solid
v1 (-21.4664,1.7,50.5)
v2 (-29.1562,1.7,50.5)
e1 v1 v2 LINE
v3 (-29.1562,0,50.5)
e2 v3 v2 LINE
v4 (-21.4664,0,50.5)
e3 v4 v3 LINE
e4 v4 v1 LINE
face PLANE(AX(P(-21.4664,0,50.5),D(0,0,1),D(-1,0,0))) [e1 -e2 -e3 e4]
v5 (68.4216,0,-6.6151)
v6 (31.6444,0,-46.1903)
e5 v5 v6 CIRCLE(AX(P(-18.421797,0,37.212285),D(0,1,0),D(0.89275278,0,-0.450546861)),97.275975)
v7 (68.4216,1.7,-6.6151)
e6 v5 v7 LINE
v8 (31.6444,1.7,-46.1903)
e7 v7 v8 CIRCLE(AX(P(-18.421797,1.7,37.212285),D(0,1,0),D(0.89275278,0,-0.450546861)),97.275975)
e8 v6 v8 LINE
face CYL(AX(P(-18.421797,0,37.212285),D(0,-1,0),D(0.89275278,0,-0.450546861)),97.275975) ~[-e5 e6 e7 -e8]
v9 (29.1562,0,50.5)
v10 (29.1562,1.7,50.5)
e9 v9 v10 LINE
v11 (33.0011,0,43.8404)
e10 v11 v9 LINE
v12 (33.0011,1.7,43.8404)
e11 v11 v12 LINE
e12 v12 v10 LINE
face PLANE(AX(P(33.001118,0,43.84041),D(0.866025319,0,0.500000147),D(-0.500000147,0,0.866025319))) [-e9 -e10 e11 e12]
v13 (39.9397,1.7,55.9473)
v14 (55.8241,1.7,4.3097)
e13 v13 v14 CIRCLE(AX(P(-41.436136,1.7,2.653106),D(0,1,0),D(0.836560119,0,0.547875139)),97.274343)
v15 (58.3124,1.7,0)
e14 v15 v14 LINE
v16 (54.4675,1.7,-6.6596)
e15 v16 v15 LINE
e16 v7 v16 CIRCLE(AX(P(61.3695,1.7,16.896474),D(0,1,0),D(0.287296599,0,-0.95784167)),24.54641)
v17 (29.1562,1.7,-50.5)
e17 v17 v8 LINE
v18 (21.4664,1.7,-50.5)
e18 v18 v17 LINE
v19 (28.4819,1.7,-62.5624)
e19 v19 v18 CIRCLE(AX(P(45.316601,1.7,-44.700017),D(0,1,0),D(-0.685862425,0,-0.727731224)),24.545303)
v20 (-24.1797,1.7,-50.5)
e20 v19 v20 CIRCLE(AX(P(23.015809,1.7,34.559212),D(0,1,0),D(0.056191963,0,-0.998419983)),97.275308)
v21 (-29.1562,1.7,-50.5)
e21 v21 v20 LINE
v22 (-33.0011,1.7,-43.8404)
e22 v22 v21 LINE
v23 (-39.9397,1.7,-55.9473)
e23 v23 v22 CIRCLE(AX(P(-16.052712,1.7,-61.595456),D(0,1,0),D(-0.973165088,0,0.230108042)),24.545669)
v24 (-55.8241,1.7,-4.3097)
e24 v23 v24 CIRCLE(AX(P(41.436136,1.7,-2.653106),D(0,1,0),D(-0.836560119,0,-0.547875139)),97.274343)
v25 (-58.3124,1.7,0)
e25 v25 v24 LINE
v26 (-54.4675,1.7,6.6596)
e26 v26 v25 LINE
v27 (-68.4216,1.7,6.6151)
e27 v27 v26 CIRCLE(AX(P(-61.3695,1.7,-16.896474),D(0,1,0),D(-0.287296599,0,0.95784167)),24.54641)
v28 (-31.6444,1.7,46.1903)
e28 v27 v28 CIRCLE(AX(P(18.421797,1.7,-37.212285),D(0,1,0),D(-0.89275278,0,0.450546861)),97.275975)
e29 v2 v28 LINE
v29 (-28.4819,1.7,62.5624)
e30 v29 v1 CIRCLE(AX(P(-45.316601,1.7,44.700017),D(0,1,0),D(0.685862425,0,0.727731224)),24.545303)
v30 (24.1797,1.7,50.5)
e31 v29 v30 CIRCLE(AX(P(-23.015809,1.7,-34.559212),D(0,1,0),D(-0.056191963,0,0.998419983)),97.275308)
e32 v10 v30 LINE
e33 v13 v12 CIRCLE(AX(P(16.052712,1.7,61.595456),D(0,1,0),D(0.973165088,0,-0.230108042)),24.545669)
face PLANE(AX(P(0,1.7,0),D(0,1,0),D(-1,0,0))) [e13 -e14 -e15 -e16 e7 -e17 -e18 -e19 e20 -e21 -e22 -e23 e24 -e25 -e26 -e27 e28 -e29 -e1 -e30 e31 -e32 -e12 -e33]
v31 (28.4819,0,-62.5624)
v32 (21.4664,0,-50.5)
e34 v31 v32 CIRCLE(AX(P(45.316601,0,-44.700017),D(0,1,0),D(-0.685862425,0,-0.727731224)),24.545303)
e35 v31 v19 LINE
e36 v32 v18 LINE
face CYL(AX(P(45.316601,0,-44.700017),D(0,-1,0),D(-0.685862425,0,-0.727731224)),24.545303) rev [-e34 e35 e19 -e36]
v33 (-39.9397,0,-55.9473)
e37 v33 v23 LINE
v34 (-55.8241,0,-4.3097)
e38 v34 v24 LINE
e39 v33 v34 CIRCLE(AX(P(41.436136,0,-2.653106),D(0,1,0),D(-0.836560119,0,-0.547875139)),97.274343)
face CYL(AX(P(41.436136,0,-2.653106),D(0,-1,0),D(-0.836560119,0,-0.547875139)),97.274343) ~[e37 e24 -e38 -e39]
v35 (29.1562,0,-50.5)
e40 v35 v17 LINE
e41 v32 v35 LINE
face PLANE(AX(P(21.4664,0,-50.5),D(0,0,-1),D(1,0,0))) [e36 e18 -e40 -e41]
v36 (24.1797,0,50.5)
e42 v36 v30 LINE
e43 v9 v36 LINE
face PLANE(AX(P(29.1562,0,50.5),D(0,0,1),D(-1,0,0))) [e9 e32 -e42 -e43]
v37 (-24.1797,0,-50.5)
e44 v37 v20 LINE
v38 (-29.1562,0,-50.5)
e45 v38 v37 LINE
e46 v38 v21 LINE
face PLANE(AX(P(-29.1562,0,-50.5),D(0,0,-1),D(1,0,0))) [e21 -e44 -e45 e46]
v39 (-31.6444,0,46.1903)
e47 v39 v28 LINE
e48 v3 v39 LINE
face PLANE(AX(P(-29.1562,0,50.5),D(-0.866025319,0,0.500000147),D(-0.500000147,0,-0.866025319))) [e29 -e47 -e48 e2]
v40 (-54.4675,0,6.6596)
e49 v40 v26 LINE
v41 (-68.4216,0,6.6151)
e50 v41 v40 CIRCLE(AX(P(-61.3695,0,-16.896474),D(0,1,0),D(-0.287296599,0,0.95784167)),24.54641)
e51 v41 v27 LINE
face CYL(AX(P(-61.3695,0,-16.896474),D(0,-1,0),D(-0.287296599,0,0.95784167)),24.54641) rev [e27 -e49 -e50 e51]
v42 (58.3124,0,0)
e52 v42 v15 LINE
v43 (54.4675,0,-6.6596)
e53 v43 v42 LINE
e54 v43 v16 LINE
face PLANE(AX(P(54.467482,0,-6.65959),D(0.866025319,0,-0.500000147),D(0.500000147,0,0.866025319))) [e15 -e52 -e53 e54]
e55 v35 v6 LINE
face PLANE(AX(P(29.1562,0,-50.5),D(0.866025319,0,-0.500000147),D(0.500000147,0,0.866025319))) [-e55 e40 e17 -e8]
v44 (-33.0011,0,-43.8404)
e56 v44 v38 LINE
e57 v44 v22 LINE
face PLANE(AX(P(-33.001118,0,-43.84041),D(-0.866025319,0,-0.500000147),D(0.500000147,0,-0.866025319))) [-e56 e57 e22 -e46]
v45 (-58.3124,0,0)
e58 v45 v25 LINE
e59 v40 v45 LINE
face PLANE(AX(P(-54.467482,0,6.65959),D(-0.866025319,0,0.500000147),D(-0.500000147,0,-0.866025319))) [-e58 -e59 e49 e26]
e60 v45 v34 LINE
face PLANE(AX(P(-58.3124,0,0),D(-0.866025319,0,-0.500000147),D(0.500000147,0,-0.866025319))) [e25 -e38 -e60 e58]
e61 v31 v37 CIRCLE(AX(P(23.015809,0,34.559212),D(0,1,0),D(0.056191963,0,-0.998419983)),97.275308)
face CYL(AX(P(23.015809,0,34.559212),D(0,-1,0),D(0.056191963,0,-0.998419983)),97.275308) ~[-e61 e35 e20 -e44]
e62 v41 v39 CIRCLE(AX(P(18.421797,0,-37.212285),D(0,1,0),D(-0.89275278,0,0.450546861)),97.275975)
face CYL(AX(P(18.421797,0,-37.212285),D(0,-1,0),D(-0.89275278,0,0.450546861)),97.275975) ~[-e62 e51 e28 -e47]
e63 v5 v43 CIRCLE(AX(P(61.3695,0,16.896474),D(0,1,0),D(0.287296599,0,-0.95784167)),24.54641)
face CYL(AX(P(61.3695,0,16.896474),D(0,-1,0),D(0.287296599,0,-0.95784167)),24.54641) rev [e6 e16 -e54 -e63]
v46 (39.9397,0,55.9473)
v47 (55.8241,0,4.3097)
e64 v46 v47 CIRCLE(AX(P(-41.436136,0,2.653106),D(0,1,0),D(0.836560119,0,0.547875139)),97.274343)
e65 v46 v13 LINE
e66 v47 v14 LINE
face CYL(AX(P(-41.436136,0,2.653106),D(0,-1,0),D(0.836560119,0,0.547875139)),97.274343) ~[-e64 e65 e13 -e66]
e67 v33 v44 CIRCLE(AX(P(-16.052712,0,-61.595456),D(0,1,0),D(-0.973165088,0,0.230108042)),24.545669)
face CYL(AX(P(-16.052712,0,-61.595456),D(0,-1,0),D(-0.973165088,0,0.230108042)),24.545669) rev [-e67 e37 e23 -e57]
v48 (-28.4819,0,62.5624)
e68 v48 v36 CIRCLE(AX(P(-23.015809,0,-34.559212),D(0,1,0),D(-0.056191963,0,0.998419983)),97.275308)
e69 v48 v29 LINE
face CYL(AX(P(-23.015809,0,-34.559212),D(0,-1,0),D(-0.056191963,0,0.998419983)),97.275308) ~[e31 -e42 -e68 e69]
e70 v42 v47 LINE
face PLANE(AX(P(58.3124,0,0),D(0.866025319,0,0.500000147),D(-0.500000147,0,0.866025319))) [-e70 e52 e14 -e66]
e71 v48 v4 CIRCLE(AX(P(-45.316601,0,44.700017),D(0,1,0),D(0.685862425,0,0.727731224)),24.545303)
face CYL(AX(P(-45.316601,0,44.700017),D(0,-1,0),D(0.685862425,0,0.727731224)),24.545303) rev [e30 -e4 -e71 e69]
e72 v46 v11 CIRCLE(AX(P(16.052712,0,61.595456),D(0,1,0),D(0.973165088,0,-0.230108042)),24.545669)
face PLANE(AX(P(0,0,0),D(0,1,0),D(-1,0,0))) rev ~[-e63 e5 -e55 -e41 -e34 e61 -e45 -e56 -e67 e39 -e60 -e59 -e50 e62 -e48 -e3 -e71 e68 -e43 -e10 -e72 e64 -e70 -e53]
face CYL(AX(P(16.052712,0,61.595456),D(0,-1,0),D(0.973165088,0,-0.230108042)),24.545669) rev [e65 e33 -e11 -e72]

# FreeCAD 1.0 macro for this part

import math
import FreeCAD as App
import Part
import Sketcher
Q = App.Units.Quantity

doc = App.newDocument("Part")
body = doc.addObject("PartDesign::Body", "Body")

sketch1 = body.newObject("Sketcher::SketchObject", "Sketch")
sketch1.AttachmentSupport = (doc.getObject("XZ_Plane"), [""])
sketch1.MapMode = "FlatFace"
sketch1.addGeometry(Part.LineSegment(App.Vector(31.6, -46.2, 0), App.Vector(29.2, -50.5, 0)), False)
sketch1.addGeometry(Part.LineSegment(App.Vector(29.2, -50.5, 0), App.Vector(21.5, -50.5, 0)), False)
sketch1.addGeometry(Part.ArcOfCircle(Part.Circle(App.Vector(45.3, -44.7, 0), App.Vector(0, 0, 1), 24.5), math.radians(-166), math.radians(-133)), False)
sketch1.addGeometry(Part.ArcOfCircle(Part.Circle(App.Vector(23, 34.6, 0), App.Vector(0, 0, 1), 97.3), math.radians(-119), math.radians(-87)), False)
sketch1.addGeometry(Part.LineSegment(App.Vector(-24.2, -50.5, 0), App.Vector(-29.2, -50.5, 0)), False)
sketch1.addGeometry(Part.LineSegment(App.Vector(-29.2, -50.5, 0), App.Vector(-33, -43.8, 0)), False)
sketch1.addGeometry(Part.ArcOfCircle(Part.Circle(App.Vector(-16.1, -61.6, 0), App.Vector(0, 0, 1), 24.5), math.radians(134), math.radians(167)), False)
sketch1.addGeometry(Part.ArcOfCircle(Part.Circle(App.Vector(41.4, -2.7, 0), App.Vector(0, 0, 1), 97.3), math.radians(-179), math.radians(-147)), False)
sketch1.addGeometry(Part.LineSegment(App.Vector(-55.8, -4.3, 0), App.Vector(-58.3, 0, 0)), False)
sketch1.addGeometry(Part.LineSegment(App.Vector(-58.3, 0, 0), App.Vector(-54.5, 6.7, 0)), False)
sketch1.addGeometry(Part.ArcOfCircle(Part.Circle(App.Vector(-61.4, -16.9, 0), App.Vector(0, 0, 1), 24.5), math.radians(74), math.radians(107)), False)
sketch1.addGeometry(Part.ArcOfCircle(Part.Circle(App.Vector(18.4, -37.2, 0), App.Vector(0, 0, 1), 97.3), math.radians(121), math.radians(153)), False)
sketch1.addGeometry(Part.LineSegment(App.Vector(-31.6, 46.2, 0), App.Vector(-29.2, 50.5, 0)), False)
sketch1.addGeometry(Part.LineSegment(App.Vector(-29.2, 50.5, 0), App.Vector(-21.5, 50.5, 0)), False)
sketch1.addGeometry(Part.ArcOfCircle(Part.Circle(App.Vector(-45.3, 44.7, 0), App.Vector(0, 0, 1), 24.5), math.radians(14), math.radians(47)), False)
sketch1.addGeometry(Part.ArcOfCircle(Part.Circle(App.Vector(-23, -34.6, 0), App.Vector(0, 0, 1), 97.3), math.radians(61), math.radians(93)), False)
sketch1.addGeometry(Part.LineSegment(App.Vector(24.2, 50.5, 0), App.Vector(29.2, 50.5, 0)), False)
sketch1.addGeometry(Part.LineSegment(App.Vector(29.2, 50.5, 0), App.Vector(33, 43.8, 0)), False)
sketch1.addGeometry(Part.ArcOfCircle(Part.Circle(App.Vector(16.1, 61.6, 0), App.Vector(0, 0, 1), 24.5), math.radians(-46), math.radians(-13)), False)
sketch1.addGeometry(Part.ArcOfCircle(Part.Circle(App.Vector(-41.4, 2.7, 0), App.Vector(0, 0, 1), 97.3), math.radians(1), math.radians(33)), False)
sketch1.addGeometry(Part.LineSegment(App.Vector(55.8, 4.3, 0), App.Vector(58.3, 0, 0)), False)
sketch1.addGeometry(Part.LineSegment(App.Vector(58.3, 0, 0), App.Vector(54.5, -6.7, 0)), False)
sketch1.addGeometry(Part.ArcOfCircle(Part.Circle(App.Vector(61.4, 16.9, 0), App.Vector(0, 0, 1), 24.5), math.radians(-106), math.radians(-73)), False)
sketch1.addGeometry(Part.ArcOfCircle(Part.Circle(App.Vector(-18.4, 37.2, 0), App.Vector(0, 0, 1), 97.3), math.radians(-59), math.radians(-27)), False)
sketch1.addConstraint(Sketcher.Constraint("Coincident", 0, 2, 1, 1))
sketch1.addConstraint(Sketcher.Constraint("Coincident", 1, 2, 2, 1))
sketch1.addConstraint(Sketcher.Constraint("Coincident", 2, 2, 3, 2))
sketch1.addConstraint(Sketcher.Constraint("Coincident", 3, 1, 4, 1))
sketch1.addConstraint(Sketcher.Constraint("Coincident", 4, 2, 5, 1))
sketch1.addConstraint(Sketcher.Constraint("Coincident", 5, 2, 6, 1))
sketch1.addConstraint(Sketcher.Constraint("Coincident", 6, 2, 7, 2))
sketch1.addConstraint(Sketcher.Constraint("Coincident", 7, 1, 8, 1))
sketch1.addConstraint(Sketcher.Constraint("Coincident", 8, 2, 9, 1))
sketch1.addConstraint(Sketcher.Constraint("Coincident", 9, 2, 10, 1))
sketch1.addConstraint(Sketcher.Constraint("Coincident", 10, 2, 11, 2))
sketch1.addConstraint(Sketcher.Constraint("Coincident", 11, 1, 12, 1))
sketch1.addConstraint(Sketcher.Constraint("Coincident", 12, 2, 13, 1))
sketch1.addConstraint(Sketcher.Constraint("Coincident", 13, 2, 14, 1))
sketch1.addConstraint(Sketcher.Constraint("Coincident", 14, 2, 15, 2))
sketch1.addConstraint(Sketcher.Constraint("Coincident", 15, 1, 16, 1))
sketch1.addConstraint(Sketcher.Constraint("Coincident", 16, 2, 17, 1))
sketch1.addConstraint(Sketcher.Constraint("Coincident", 17, 2, 18, 1))
sketch1.addConstraint(Sketcher.Constraint("Coincident", 18, 2, 19, 2))
sketch1.addConstraint(Sketcher.Constraint("Coincident", 19, 1, 20, 1))
sketch1.addConstraint(Sketcher.Constraint("Coincident", 20, 2, 21, 1))
sketch1.addConstraint(Sketcher.Constraint("Coincident", 21, 2, 22, 1))
sketch1.addConstraint(Sketcher.Constraint("Coincident", 22, 2, 23, 2))
sketch1.addConstraint(Sketcher.Constraint("Coincident", 23, 1, 0, 1))
sketch1.addConstraint(Sketcher.Constraint("Horizontal", 1))
sketch1.addConstraint(Sketcher.Constraint("Horizontal", 4))
sketch1.addConstraint(Sketcher.Constraint("Horizontal", 13))
sketch1.addConstraint(Sketcher.Constraint("Horizontal", 16))
sketch1.addConstraint(Sketcher.Constraint("Equal", 2, 6))
sketch1.addConstraint(Sketcher.Constraint("Equal", 3, 7))
sketch1.addConstraint(Sketcher.Constraint("Equal", 6, 10))
sketch1.addConstraint(Sketcher.Constraint("Equal", 7, 11))
sketch1.addConstraint(Sketcher.Constraint("Equal", 10, 14))
sketch1.addConstraint(Sketcher.Constraint("Equal", 11, 15))
sketch1.addConstraint(Sketcher.Constraint("Equal", 14, 18))
sketch1.addConstraint(Sketcher.Constraint("Equal", 15, 19))
sketch1.addConstraint(Sketcher.Constraint("Equal", 18, 22))
sketch1.addConstraint(Sketcher.Constraint("Equal", 19, 23))
sketch1.addConstraint(Sketcher.Constraint("Symmetric", 2, 3, 14, 3, -1, 1))
sketch1.addConstraint(Sketcher.Constraint("Symmetric", 3, 3, 15, 3, -1, 1))
sketch1.addConstraint(Sketcher.Constraint("Symmetric", 6, 3, 18, 3, -1, 1))
sketch1.addConstraint(Sketcher.Constraint("Symmetric", 7, 3, 19, 3, -1, 1))
sketch1.addConstraint(Sketcher.Constraint("Symmetric", 10, 3, 22, 3, -1, 1))
sketch1.addConstraint(Sketcher.Constraint("Symmetric", 11, 3, 23, 3, -1, 1))
sketch1.addConstraint(Sketcher.Constraint("Symmetric", 0, 2, 12, 2, -1, 1))
sketch1.addConstraint(Sketcher.Constraint("Symmetric", 4, 2, 16, 2, -1, 1))
sketch1.addConstraint(Sketcher.Constraint("Symmetric", 8, 2, 20, 2, -1, 1))
sketch1.addConstraint(Sketcher.Constraint("Symmetric", 0, 2, 4, 2, -2))
sketch1.addConstraint(Sketcher.Constraint("PointOnObject", 8, 2, -1))
sketch1.addConstraint(Sketcher.Constraint("Parallel", 5, 8))
sketch1.addConstraint(Sketcher.Constraint("Parallel", 0, 9))
sketch1.addConstraint(Sketcher.Constraint("Parallel", 9, 12))
sketch1.addConstraint(Sketcher.Constraint("Parallel", 8, 17))
sketch1.addConstraint(Sketcher.Constraint("Parallel", 17, 20))
sketch1.addConstraint(Sketcher.Constraint("Parallel", 12, 21))
sketch1.addConstraint(Sketcher.Constraint("Equal", 0, 8))
sketch1.addConstraint(Sketcher.Constraint("Equal", 5, 9))
sketch1.addConstraint(Sketcher.Constraint("Radius", 2, Q("24.5458 mm")))
sketch1.addConstraint(Sketcher.Constraint("Radius", 3, Q("97.2752 mm")))
sketch1.addConstraint(Sketcher.Constraint("Angle", 0, Q("-120 deg")))
sketch1.addConstraint(Sketcher.Constraint("Angle", 5, Q("120 deg")))
sketch1.addConstraint(Sketcher.Constraint("DistanceX", 1, 2, 1, 1, Q("7.6898 mm")))
sketch1.addConstraint(Sketcher.Constraint("DistanceX", 4, 2, 4, 1, Q("4.9765 mm")))
sketch1.addConstraint(Sketcher.Constraint("Distance", 0, Q("4.9764 mm")))
sketch1.addConstraint(Sketcher.Constraint("Distance", 5, Q("7.6898 mm")))
sketch1.addConstraint(Sketcher.Constraint("DistanceY", 0, 2, -1, 1, Q("50.5 mm")))
sketch1.addConstraint(Sketcher.Constraint("DistanceX", 7, 3, 2, 3, Q("3.88 mm")))
sketch1.addConstraint(Sketcher.Constraint("DistanceX", 10, 3, 3, 1, Q("37.19 mm")))
sketch1.addConstraint(Sketcher.Constraint("DistanceX", 6, 2, 3, 1, Q("15.76 mm")))
sketch1.addConstraint(Sketcher.Constraint("DistanceY", 9, 2, 14, 3, Q("38.04 mm")))
sketch1.addConstraint(Sketcher.Constraint("DistanceX", -1, 1, 2, 3, Q("45.317 mm")))
sketch1.addConstraint(Sketcher.Constraint("DistanceY", -1, 1, 3, 3, Q("34.559 mm")))
sketch1.addConstraint(Sketcher.Constraint("DistanceX", -1, 1, 11, 3, Q("18.421 mm")))
sketch1.addConstraint(Sketcher.Constraint("DistanceY", 2, 3, 7, 3, Q("42.047 mm")))
pad1 = body.newObject("PartDesign::Pad", "Pad")
pad1.Profile = sketch1
pad1.Length = 1.7
pad1.Reversed = True

doc.recompute()
